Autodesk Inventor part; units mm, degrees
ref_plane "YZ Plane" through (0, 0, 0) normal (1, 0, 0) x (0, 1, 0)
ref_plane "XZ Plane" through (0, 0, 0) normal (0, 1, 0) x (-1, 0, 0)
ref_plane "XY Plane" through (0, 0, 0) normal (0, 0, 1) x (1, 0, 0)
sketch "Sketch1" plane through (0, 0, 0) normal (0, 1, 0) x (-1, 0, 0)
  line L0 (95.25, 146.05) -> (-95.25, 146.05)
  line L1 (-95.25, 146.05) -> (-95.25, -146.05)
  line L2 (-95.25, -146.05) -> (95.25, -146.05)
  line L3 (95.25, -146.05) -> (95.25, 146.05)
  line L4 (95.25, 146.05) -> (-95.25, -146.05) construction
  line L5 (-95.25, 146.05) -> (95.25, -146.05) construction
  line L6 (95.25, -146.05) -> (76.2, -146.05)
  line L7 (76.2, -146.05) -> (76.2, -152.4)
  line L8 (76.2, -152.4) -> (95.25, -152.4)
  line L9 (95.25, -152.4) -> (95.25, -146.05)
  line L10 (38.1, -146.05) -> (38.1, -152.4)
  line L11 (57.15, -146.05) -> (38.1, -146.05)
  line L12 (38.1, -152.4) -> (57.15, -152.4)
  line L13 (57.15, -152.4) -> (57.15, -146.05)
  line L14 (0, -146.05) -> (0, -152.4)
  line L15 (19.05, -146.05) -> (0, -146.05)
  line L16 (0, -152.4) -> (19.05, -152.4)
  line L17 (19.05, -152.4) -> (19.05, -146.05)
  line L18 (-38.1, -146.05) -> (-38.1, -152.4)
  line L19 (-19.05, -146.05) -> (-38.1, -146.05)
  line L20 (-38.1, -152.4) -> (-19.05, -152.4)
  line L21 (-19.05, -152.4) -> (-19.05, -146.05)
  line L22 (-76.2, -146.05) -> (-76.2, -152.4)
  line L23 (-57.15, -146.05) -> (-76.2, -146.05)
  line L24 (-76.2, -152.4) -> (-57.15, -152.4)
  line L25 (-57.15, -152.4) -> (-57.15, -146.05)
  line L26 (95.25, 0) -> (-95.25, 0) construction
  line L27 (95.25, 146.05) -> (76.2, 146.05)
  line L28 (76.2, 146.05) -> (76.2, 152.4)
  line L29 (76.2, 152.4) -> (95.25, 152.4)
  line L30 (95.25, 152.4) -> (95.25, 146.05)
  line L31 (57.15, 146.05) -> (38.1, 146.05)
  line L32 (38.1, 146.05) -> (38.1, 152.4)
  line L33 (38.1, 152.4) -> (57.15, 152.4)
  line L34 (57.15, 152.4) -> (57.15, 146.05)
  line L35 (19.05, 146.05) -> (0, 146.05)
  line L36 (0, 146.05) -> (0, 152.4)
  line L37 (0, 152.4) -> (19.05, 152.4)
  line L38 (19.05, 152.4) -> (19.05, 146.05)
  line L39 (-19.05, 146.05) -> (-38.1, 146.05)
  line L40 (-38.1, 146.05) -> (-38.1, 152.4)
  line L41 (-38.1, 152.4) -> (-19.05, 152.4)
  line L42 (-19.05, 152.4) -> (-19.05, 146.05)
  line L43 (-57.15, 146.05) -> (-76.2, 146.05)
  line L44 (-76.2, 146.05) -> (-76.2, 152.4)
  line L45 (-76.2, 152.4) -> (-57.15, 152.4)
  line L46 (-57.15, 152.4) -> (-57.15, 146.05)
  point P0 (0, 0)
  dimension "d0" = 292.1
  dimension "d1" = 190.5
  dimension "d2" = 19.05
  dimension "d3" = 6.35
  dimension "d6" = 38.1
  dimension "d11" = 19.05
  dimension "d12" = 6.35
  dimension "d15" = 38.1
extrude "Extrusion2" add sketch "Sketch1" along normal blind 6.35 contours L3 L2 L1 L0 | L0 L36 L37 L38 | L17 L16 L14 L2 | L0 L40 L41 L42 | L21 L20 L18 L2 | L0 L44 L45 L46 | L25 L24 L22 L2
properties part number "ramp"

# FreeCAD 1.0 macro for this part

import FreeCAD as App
import Part
import Sketcher

V = App.Vector
Q = App.Units.Quantity

doc = App.newDocument("Part")
body = doc.addObject("PartDesign::Body", "Body")

# Sketch on XZ plane
sketch1 = doc.addObject("Sketcher::SketchObject", "Sketch")
body.addObject(sketch1)
sketch1.AttachmentSupport = (doc.XZ_Plane, [""])
sketch1.MapMode = "FlatFace"
sketch1.addGeometry(Part.LineSegment(V(-95.25, -146.05, 0), V(-95.25, 146.05, 0)), False)
sketch1.addGeometry(Part.LineSegment(V(-95.25, 146.05, 0), V(-19.05, 146.05, 0)), False)
sketch1.addGeometry(Part.LineSegment(V(-19.05, 146.05, 0), V(-19.05, 152.4, 0)), False)
sketch1.addGeometry(Part.LineSegment(V(-19.05, 152.4, 0), V(0, 152.4, 0)), False)
sketch1.addGeometry(Part.LineSegment(V(0, 152.4, 0), V(0, 146.05, 0)), False)
sketch1.addGeometry(Part.LineSegment(V(0, 146.05, 0), V(19.05, 146.05, 0)), False)
sketch1.addGeometry(Part.LineSegment(V(19.05, 146.05, 0), V(19.05, 152.4, 0)), False)
sketch1.addGeometry(Part.LineSegment(V(19.05, 152.4, 0), V(38.1, 152.4, 0)), False)
sketch1.addGeometry(Part.LineSegment(V(38.1, 152.4, 0), V(38.1, 146.05, 0)), False)
sketch1.addGeometry(Part.LineSegment(V(38.1, 146.05, 0), V(57.15, 146.05, 0)), False)
sketch1.addGeometry(Part.LineSegment(V(57.15, 146.05, 0), V(57.15, 152.4, 0)), False)
sketch1.addGeometry(Part.LineSegment(V(57.15, 152.4, 0), V(76.2, 152.4, 0)), False)
sketch1.addGeometry(Part.LineSegment(V(76.2, 152.4, 0), V(76.2, 146.05, 0)), False)
sketch1.addGeometry(Part.LineSegment(V(76.2, 146.05, 0), V(95.25, 146.05, 0)), False)
sketch1.addGeometry(Part.LineSegment(V(95.25, 146.05, 0), V(95.25, -146.05, 0)), False)
sketch1.addGeometry(Part.LineSegment(V(95.25, -146.05, 0), V(76.2, -146.05, 0)), False)
sketch1.addGeometry(Part.LineSegment(V(76.2, -146.05, 0), V(76.2, -152.4, 0)), False)
sketch1.addGeometry(Part.LineSegment(V(76.2, -152.4, 0), V(57.15, -152.4, 0)), False)
sketch1.addGeometry(Part.LineSegment(V(57.15, -152.4, 0), V(57.15, -146.05, 0)), False)
sketch1.addGeometry(Part.LineSegment(V(57.15, -146.05, 0), V(38.1, -146.05, 0)), False)
sketch1.addGeometry(Part.LineSegment(V(38.1, -146.05, 0), V(38.1, -152.4, 0)), False)
sketch1.addGeometry(Part.LineSegment(V(38.1, -152.4, 0), V(19.05, -152.4, 0)), False)
sketch1.addGeometry(Part.LineSegment(V(19.05, -152.4, 0), V(19.05, -146.05, 0)), False)
sketch1.addGeometry(Part.LineSegment(V(19.05, -146.05, 0), V(0, -146.05, 0)), False)
sketch1.addGeometry(Part.LineSegment(V(0, -146.05, 0), V(0, -152.4, 0)), False)
sketch1.addGeometry(Part.LineSegment(V(0, -152.4, 0), V(-19.05, -152.4, 0)), False)
sketch1.addGeometry(Part.LineSegment(V(-19.05, -152.4, 0), V(-19.05, -146.05, 0)), False)
sketch1.addGeometry(Part.LineSegment(V(-19.05, -146.05, 0), V(-95.25, -146.05, 0)), False)
sketch1.addConstraint(Sketcher.Constraint("Coincident", 0, 2, 1, 1))
sketch1.addConstraint(Sketcher.Constraint("Coincident", 1, 2, 2, 1))
sketch1.addConstraint(Sketcher.Constraint("Coincident", 2, 2, 3, 1))
sketch1.addConstraint(Sketcher.Constraint("Coincident", 3, 2, 4, 1))
sketch1.addConstraint(Sketcher.Constraint("Coincident", 4, 2, 5, 1))
sketch1.addConstraint(Sketcher.Constraint("Coincident", 5, 2, 6, 1))
sketch1.addConstraint(Sketcher.Constraint("Coincident", 6, 2, 7, 1))
sketch1.addConstraint(Sketcher.Constraint("Coincident", 7, 2, 8, 1))
sketch1.addConstraint(Sketcher.Constraint("Coincident", 8, 2, 9, 1))
sketch1.addConstraint(Sketcher.Constraint("Coincident", 9, 2, 10, 1))
sketch1.addConstraint(Sketcher.Constraint("Coincident", 10, 2, 11, 1))
sketch1.addConstraint(Sketcher.Constraint("Coincident", 11, 2, 12, 1))
sketch1.addConstraint(Sketcher.Constraint("Coincident", 12, 2, 13, 1))
sketch1.addConstraint(Sketcher.Constraint("Coincident", 13, 2, 14, 1))
sketch1.addConstraint(Sketcher.Constraint("Coincident", 14, 2, 15, 1))
sketch1.addConstraint(Sketcher.Constraint("Coincident", 15, 2, 16, 1))
sketch1.addConstraint(Sketcher.Constraint("Coincident", 16, 2, 17, 1))
sketch1.addConstraint(Sketcher.Constraint("Coincident", 17, 2, 18, 1))
sketch1.addConstraint(Sketcher.Constraint("Coincident", 18, 2, 19, 1))
sketch1.addConstraint(Sketcher.Constraint("Coincident", 19, 2, 20, 1))
sketch1.addConstraint(Sketcher.Constraint("Coincident", 20, 2, 21, 1))
sketch1.addConstraint(Sketcher.Constraint("Coincident", 21, 2, 22, 1))
sketch1.addConstraint(Sketcher.Constraint("Coincident", 22, 2, 23, 1))
sketch1.addConstraint(Sketcher.Constraint("Coincident", 23, 2, 24, 1))
sketch1.addConstraint(Sketcher.Constraint("Coincident", 24, 2, 25, 1))
sketch1.addConstraint(Sketcher.Constraint("Coincident", 25, 2, 26, 1))
sketch1.addConstraint(Sketcher.Constraint("Coincident", 26, 2, 27, 1))
sketch1.addConstraint(Sketcher.Constraint("Coincident", 27, 2, 0, 1))
sketch1.addConstraint(Sketcher.Constraint("Vertical", 0))
sketch1.addConstraint(Sketcher.Constraint("Horizontal", 1))
sketch1.addConstraint(Sketcher.Constraint("Vertical", 2))
sketch1.addConstraint(Sketcher.Constraint("Horizontal", 3))
sketch1.addConstraint(Sketcher.Constraint("Vertical", 4))
sketch1.addConstraint(Sketcher.Constraint("Horizontal", 5))
sketch1.addConstraint(Sketcher.Constraint("Vertical", 6))
sketch1.addConstraint(Sketcher.Constraint("Horizontal", 7))
sketch1.addConstraint(Sketcher.Constraint("Vertical", 8))
sketch1.addConstraint(Sketcher.Constraint("Horizontal", 9))
sketch1.addConstraint(Sketcher.Constraint("Vertical", 10))
sketch1.addConstraint(Sketcher.Constraint("Horizontal", 11))
sketch1.addConstraint(Sketcher.Constraint("Vertical", 12))
sketch1.addConstraint(Sketcher.Constraint("Horizontal", 13))
sketch1.addConstraint(Sketcher.Constraint("Vertical", 14))
sketch1.addConstraint(Sketcher.Constraint("Horizontal", 15))
sketch1.addConstraint(Sketcher.Constraint("Vertical", 16))
sketch1.addConstraint(Sketcher.Constraint("Horizontal", 17))
sketch1.addConstraint(Sketcher.Constraint("Vertical", 18))
sketch1.addConstraint(Sketcher.Constraint("Horizontal", 19))
sketch1.addConstraint(Sketcher.Constraint("Vertical", 20))
sketch1.addConstraint(Sketcher.Constraint("Horizontal", 21))
sketch1.addConstraint(Sketcher.Constraint("Vertical", 22))
sketch1.addConstraint(Sketcher.Constraint("Horizontal", 23))
sketch1.addConstraint(Sketcher.Constraint("Vertical", 24))
sketch1.addConstraint(Sketcher.Constraint("Horizontal", 25))
sketch1.addConstraint(Sketcher.Constraint("Vertical", 26))
sketch1.addConstraint(Sketcher.Constraint("Horizontal", 27))
sketch1.addConstraint(Sketcher.Constraint("Symmetric", 0, 2, 14, 2, -1, 1))
sketch1.addConstraint(Sketcher.Constraint("Symmetric", 2, 2, 21, 2, -1, 1))
sketch1.addConstraint(Sketcher.Constraint("Symmetric", 4, 2, 23, 2, -1, 1))
sketch1.addConstraint(Sketcher.Constraint("Symmetric", 6, 2, 25, 2, -1, 1))
sketch1.addConstraint(Sketcher.Constraint("Symmetric", 1, 2, 5, 2, -2))
sketch1.addConstraint(Sketcher.Constraint("Symmetric", 12, 2, 15, 2, -1))
sketch1.addConstraint(Sketcher.Constraint("Symmetric", 10, 2, 17, 2, -1))
sketch1.addConstraint(Sketcher.Constraint("Symmetric", 8, 2, 19, 2, -1))
sketch1.addConstraint(Sketcher.Constraint("Symmetric", 3, 2, 24, 2, -1))
sketch1.addConstraint(Sketcher.Constraint("Horizontal", 5, 2, 8, 2))
sketch1.addConstraint(Sketcher.Constraint("Horizontal", 7, 2, 10, 2))
sketch1.addConstraint(Sketcher.Constraint("Horizontal", 23, 2, 26, 2))
sketch1.addConstraint(Sketcher.Constraint("Equal", 5, 7))
sketch1.addConstraint(Sketcher.Constraint("Equal", 7, 9))
sketch1.addConstraint(Sketcher.Constraint("Equal", 9, 11))
sketch1.addConstraint(Sketcher.Constraint("Equal", 11, 13))
sketch1.addConstraint(Sketcher.Constraint("DistanceY", 0, 1, 0, 2, Q("11.5 in")))
sketch1.addConstraint(Sketcher.Constraint("DistanceX", 3, 1, 3, 2, Q("0.75 in")))
sketch1.addConstraint(Sketcher.Constraint("DistanceY", 2, 1, 2, 2, Q("0.25 in")))
pad1 = doc.addObject("PartDesign::Pad", "Pad")
body.addObject(pad1)
pad1.Profile = sketch1
pad1.Length = Q("0.25 in")
pad1.Reversed = True

doc.recompute()
